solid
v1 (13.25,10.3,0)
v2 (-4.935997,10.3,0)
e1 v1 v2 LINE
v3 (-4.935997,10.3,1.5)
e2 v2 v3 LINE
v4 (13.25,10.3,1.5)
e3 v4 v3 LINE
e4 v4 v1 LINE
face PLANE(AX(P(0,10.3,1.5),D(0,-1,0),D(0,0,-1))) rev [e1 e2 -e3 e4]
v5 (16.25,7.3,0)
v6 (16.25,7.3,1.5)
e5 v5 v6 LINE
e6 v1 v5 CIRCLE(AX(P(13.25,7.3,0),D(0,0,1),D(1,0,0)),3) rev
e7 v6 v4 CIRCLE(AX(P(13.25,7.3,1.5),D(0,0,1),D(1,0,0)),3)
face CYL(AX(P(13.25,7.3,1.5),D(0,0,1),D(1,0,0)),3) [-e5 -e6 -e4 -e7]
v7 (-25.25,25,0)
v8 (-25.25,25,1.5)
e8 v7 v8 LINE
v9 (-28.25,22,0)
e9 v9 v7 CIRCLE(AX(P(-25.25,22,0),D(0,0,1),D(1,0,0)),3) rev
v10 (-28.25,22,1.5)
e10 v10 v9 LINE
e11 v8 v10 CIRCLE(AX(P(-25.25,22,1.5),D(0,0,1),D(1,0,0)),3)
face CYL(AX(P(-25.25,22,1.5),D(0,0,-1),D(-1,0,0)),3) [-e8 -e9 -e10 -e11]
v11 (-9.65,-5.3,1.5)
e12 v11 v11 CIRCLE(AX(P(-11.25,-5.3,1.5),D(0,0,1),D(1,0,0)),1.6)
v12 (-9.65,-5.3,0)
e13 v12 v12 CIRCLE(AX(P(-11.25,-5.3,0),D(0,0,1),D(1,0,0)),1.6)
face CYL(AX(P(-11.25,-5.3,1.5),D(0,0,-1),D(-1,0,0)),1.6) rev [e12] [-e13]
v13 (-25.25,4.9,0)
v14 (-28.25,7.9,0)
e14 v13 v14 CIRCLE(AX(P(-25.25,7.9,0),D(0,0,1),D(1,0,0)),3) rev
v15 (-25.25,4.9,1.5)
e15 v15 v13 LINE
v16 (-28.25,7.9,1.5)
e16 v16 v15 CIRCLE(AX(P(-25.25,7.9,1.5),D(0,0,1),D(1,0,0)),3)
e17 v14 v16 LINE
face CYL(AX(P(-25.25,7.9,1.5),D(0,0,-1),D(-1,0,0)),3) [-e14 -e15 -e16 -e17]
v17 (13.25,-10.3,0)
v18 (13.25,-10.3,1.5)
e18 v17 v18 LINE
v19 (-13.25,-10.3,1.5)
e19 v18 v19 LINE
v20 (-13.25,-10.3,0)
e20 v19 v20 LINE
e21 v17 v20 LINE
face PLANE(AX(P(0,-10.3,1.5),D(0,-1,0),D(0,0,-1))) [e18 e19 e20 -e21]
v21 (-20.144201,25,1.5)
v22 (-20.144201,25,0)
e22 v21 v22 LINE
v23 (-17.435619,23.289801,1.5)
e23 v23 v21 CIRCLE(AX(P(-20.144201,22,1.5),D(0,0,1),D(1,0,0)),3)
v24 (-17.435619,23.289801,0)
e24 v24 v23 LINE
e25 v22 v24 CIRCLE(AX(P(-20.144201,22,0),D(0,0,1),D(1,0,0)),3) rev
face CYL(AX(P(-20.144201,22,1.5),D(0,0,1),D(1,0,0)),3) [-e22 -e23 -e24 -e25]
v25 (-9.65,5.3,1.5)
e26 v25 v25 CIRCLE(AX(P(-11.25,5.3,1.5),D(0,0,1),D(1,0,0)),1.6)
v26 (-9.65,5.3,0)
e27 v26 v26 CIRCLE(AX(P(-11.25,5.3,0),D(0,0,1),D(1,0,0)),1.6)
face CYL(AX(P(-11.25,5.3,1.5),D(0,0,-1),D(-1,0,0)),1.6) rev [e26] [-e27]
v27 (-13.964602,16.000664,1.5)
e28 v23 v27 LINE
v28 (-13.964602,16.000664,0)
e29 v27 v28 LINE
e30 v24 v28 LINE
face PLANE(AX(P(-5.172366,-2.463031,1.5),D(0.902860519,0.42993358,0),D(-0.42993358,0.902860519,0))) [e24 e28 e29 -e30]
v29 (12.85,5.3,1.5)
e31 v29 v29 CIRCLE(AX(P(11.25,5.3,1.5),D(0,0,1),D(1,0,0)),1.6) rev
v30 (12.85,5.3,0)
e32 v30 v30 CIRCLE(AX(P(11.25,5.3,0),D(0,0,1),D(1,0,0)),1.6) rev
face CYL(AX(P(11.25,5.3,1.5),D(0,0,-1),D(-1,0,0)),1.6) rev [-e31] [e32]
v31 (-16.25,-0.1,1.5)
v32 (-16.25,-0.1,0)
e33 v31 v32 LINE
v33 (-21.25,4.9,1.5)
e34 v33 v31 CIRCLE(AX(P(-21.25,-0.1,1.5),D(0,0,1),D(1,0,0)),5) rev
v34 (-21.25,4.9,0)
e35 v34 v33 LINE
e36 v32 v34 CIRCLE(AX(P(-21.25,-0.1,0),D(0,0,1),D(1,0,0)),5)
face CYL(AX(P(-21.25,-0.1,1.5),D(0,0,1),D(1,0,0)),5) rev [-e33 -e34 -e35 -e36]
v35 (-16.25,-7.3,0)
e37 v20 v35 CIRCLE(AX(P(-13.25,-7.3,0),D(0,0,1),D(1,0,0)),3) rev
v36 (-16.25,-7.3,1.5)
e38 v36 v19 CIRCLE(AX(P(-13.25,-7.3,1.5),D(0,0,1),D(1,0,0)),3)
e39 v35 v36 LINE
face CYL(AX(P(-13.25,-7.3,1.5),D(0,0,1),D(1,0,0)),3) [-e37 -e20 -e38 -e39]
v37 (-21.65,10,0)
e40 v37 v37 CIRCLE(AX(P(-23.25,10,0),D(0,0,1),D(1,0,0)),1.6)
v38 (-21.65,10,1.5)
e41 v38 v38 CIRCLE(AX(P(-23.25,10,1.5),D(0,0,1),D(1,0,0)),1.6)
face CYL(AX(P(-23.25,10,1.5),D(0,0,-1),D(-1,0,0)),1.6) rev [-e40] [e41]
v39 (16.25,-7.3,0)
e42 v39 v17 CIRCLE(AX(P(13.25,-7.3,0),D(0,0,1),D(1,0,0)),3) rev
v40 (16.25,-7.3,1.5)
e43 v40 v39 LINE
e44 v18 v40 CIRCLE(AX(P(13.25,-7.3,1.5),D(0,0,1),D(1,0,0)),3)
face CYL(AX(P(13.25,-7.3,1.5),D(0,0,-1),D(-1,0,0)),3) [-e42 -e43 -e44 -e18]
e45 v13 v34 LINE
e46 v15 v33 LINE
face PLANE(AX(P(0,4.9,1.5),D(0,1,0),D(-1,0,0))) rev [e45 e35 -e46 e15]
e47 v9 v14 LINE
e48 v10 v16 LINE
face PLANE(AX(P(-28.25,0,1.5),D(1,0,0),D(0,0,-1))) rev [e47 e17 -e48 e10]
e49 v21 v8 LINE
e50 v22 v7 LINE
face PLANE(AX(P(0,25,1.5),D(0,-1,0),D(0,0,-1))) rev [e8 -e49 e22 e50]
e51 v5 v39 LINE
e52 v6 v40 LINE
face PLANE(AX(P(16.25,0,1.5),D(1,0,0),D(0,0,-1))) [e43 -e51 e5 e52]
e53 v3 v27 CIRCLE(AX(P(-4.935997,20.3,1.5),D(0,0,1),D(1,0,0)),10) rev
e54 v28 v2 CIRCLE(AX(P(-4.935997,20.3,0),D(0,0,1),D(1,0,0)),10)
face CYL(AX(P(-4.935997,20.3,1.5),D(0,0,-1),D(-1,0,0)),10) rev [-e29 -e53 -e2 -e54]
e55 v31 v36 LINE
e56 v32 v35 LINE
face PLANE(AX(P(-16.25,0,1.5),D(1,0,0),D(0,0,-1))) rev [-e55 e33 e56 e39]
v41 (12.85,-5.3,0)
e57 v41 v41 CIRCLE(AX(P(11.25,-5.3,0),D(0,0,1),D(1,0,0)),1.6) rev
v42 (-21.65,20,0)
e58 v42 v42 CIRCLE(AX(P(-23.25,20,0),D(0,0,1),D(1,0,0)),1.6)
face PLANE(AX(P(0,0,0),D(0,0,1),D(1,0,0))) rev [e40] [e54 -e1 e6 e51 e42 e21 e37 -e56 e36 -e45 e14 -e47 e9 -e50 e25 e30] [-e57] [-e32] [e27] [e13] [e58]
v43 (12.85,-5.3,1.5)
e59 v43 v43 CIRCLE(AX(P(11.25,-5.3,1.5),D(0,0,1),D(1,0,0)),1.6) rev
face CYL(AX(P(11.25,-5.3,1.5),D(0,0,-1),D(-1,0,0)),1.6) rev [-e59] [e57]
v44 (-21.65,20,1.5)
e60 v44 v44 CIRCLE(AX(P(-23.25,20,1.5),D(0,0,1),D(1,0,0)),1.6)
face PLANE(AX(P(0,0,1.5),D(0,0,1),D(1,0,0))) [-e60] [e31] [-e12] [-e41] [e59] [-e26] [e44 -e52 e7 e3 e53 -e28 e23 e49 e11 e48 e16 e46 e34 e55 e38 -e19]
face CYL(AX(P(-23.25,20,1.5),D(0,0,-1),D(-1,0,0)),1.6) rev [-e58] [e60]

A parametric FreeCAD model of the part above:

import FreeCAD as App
import Part
import Sketcher


def edges_at(feature, points):
    """Names of the edges that pass closest to the given points."""
    edges = feature.Shape.Edges
    near = lambda p: min(range(len(edges)), key=lambda i: edges[i].distToShape(Part.Vertex(*p))[0])
    return sorted({f"Edge{near(p) + 1}" for p in points})

doc = App.newDocument("Part")
params = doc.addObject("Spreadsheet::Sheet", "Params")
for row, (alias, value) in enumerate([
    ("sketch1_diameter", "3.2 mm"),
    ("sketch1_width", "10 mm"),
    ("sketch1_width2", "12 mm"),
    ("sketch1_width3", "27.5 mm"),
    ("sketch1_width4", "32.5 mm"),
    ("pad1_length", "1.5 mm"),
    ("fillet_radius", "3 mm"),
    ("fillet2_radius", "5 mm"),
    ("fillet3_radius", "10 mm"),
], start=1):
    params.set(f"A{row}", alias)
    params.set(f"B{row}", "=" + value)
    params.setAlias(f"B{row}", alias)

body = doc.addObject("PartDesign::Body", "Body")

sketch1 = doc.addObject("Sketcher::SketchObject", "Sketch")
body.addObject(sketch1)
sketch1.AttachmentSupport = (doc.XY_Plane, [""])
sketch1.MapMode = "FlatFace"
sketch1.addGeometry([
    Part.LineSegment(App.Vector(16.2, -10.3, 0), App.Vector(16.2, 10.3, 0)),
    Part.LineSegment(App.Vector(16.2, 10.3, 0), App.Vector(-11.2, 10.3, 0)),
    Part.LineSegment(App.Vector(-11.2, 10.3, 0), App.Vector(-18.2, 25, 0)),
    Part.LineSegment(App.Vector(-18.2, 25, 0), App.Vector(-28.2, 25, 0)),
    Part.LineSegment(App.Vector(-28.2, 25, 0), App.Vector(-28.2, 4.9, 0)),
    Part.LineSegment(App.Vector(-28.2, 4.9, 0), App.Vector(-16.2, 4.9, 0)),
    Part.LineSegment(App.Vector(-16.2, 4.9, 0), App.Vector(-16.2, -10.3, 0)),
    Part.LineSegment(App.Vector(-16.2, -10.3, 0), App.Vector(16.2, -10.3, 0)),
    Part.Circle(App.Vector(-11.2, -5.3, 0), App.Vector(0, 0, 1), 1.6),
    Part.Circle(App.Vector(-11.2, 5.3, 0), App.Vector(0, 0, 1), 1.6),
    Part.Circle(App.Vector(11.2, -5.3, 0), App.Vector(0, 0, 1), 1.6),
    Part.Circle(App.Vector(11.2, 5.3, 0), App.Vector(0, 0, 1), 1.6),
    Part.Circle(App.Vector(-23.2, 10, 0), App.Vector(0, 0, 1), 1.6),
    Part.Circle(App.Vector(-23.2, 20, 0), App.Vector(0, 0, 1), 1.6),
], False)
sketch1.addConstraint([
    Sketcher.Constraint("Coincident", 0, 2, 1, 1),
    Sketcher.Constraint("Coincident", 1, 2, 2, 1),
    Sketcher.Constraint("Coincident", 2, 2, 3, 1),
    Sketcher.Constraint("Coincident", 3, 2, 4, 1),
    Sketcher.Constraint("Coincident", 4, 2, 5, 1),
    Sketcher.Constraint("Coincident", 5, 2, 6, 1),
    Sketcher.Constraint("Coincident", 6, 2, 7, 1),
    Sketcher.Constraint("Coincident", 7, 2, 0, 1),
    Sketcher.Constraint("Vertical", 0),
    Sketcher.Constraint("Horizontal", 1),
    Sketcher.Constraint("Horizontal", 3),
    Sketcher.Constraint("Vertical", 4),
    Sketcher.Constraint("Horizontal", 5),
    Sketcher.Constraint("Vertical", 6),
    Sketcher.Constraint("Horizontal", 7),
    Sketcher.Constraint("Equal", 8, 9),
    Sketcher.Constraint("Equal", 9, 10),
    Sketcher.Constraint("Equal", 10, 11),
    Sketcher.Constraint("Equal", 11, 12),
    Sketcher.Constraint("Equal", 12, 13),
    Sketcher.Constraint("Symmetric", 9, 3, 10, 3, -1, 1),
    Sketcher.Constraint("Symmetric", 8, 3, 11, 3, -1, 1),
    Sketcher.Constraint("Symmetric", 0, 2, 6, 2, -1, 1),
    Sketcher.Constraint("Symmetric", 8, 3, 10, 3, -2),
    Sketcher.Constraint("Vertical", 12, 3, 13, 3),
    Sketcher.Constraint("Vertical", 9, 3, 1, 2),
    Sketcher.Constraint("Diameter", 8, 3.2),
    Sketcher.Constraint("DistanceX", 3, 2, 3, 1, 10.0),
    Sketcher.Constraint("DistanceX", 5, 1, 5, 2, 12.0),
    Sketcher.Constraint("DistanceX", 1, 2, 1, 1, 27.5),
    Sketcher.Constraint("DistanceX", 7, 1, 7, 2, 32.5),
    Sketcher.Constraint("DistanceY", 0, 1, 0, 2, 20.6),
    Sketcher.Constraint("DistanceY", 4, 2, 4, 1, 20.1),
    Sketcher.Constraint("DistanceY", 6, 2, 6, 1, 15.2),
    Sketcher.Constraint("DistanceY", -1, 1, 12, 3, 10.0),
    Sketcher.Constraint("DistanceY", -1, 1, 13, 3, 20.0),
    Sketcher.Constraint("DistanceX", 12, 3, 9, 3, 12.0),
    Sketcher.Constraint("DistanceY", 11, 3, 0, 2, 5.0),
])
sketch1.setExpression("Constraints[26]", "Params.sketch1_diameter")
sketch1.setExpression("Constraints[27]", "Params.sketch1_width")
sketch1.setExpression("Constraints[28]", "Params.sketch1_width2")
sketch1.setExpression("Constraints[29]", "Params.sketch1_width3")
sketch1.setExpression("Constraints[30]", "Params.sketch1_width4")
pad1 = doc.addObject("PartDesign::Pad", "Pad")
body.addObject(pad1)
pad1.Profile = sketch1
pad1.setExpression("Length", "Params.pad1_length")
doc.recompute()

fillet = doc.addObject("PartDesign::Fillet", "Fillet")
body.addObject(fillet)
fillet.Base = (pad1, edges_at(pad1, [
    (-28.25, 4.9, 0.75),
    (-28.25, 25, 0.75),
    (-18.25, 25, 0.75),
    (16.25, 10.3, 0.75),
    (16.25, -10.3, 0.75),
    (-16.25, -10.3, 0.75),
]))
fillet.setExpression("Radius", "Params.fillet_radius")
doc.recompute()

fillet2 = doc.addObject("PartDesign::Fillet", "Fillet001")
body.addObject(fillet2)
fillet2.Base = (fillet, edges_at(fillet, [(-16.25, 4.9, 0.75)]))
fillet2.setExpression("Radius", "Params.fillet2_radius")
doc.recompute()

fillet3 = doc.addObject("PartDesign::Fillet", "Fillet002")
body.addObject(fillet3)
fillet3.Base = (fillet2, edges_at(fillet2, [(-11.25, 10.3, 0.75)]))
fillet3.setExpression("Radius", "Params.fillet3_radius")

doc.recompute()
